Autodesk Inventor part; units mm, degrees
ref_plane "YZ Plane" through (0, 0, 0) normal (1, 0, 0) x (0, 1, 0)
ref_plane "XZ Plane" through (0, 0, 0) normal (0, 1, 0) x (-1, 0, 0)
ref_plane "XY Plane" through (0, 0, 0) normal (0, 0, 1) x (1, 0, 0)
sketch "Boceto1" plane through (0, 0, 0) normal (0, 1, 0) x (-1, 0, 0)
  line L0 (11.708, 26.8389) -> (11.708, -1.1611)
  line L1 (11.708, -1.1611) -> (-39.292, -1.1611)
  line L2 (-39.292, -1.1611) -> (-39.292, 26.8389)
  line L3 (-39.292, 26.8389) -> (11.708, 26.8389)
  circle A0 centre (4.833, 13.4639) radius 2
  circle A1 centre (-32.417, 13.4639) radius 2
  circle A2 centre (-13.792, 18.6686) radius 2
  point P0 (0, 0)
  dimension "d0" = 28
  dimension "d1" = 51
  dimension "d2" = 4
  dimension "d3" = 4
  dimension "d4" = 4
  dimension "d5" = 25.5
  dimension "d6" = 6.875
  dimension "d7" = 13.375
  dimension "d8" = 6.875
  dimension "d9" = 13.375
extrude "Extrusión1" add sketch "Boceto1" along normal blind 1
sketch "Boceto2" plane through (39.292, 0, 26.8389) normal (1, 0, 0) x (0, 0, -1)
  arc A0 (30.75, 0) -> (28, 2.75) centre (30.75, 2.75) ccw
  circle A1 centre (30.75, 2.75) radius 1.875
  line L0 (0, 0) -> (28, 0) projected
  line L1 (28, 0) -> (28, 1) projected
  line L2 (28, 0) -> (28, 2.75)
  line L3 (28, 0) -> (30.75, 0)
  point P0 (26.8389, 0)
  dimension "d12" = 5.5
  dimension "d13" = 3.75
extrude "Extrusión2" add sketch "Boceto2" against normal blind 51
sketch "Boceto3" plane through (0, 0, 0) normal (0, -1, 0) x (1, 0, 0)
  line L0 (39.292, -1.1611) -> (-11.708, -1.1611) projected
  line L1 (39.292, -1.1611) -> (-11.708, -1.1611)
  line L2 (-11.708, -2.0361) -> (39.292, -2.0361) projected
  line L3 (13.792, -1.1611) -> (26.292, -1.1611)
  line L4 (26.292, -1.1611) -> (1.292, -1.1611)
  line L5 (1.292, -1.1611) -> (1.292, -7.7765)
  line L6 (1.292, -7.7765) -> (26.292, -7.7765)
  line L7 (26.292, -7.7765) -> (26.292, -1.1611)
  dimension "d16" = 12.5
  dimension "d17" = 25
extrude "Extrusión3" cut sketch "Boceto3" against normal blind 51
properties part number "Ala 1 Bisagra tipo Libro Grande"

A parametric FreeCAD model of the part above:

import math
import FreeCAD as App
import Part
import Sketcher
from FreeCAD import Vector


def add_polygon(sketch, points):
    """Adds a closed chain of lines whose ends are joined by coincident constraints."""
    first, n = sketch.GeometryCount, len(points)
    for a, b in zip(points, points[1:] + points[:1]):
        sketch.addGeometry(Part.LineSegment(App.Vector(*a, 0), App.Vector(*b, 0)), False)
    for i in range(n):
        sketch.addConstraint(Sketcher.Constraint("Coincident", first + i, 2, first + (i + 1) % n, 1))

doc = App.newDocument("Part")
body = doc.addObject("PartDesign::Body", "Body")

# Sketch on XZ plane
sketch1 = body.newObject("Sketcher::SketchObject", "Sketch")
sketch1.AttachmentSupport = (doc.getObject("XZ_Plane"), [""])
sketch1.MapMode = "FlatFace"
add_polygon(sketch1, [(-11.7, -1.2), (-11.7, 26.8), (39.3, 26.8), (39.3, -1.2)])  # lines 0-3
sketch1.addGeometry(Part.Circle(Vector(32.4, 13.5, 0), Vector(0, 0, 1), 2), False)  # 4
sketch1.addGeometry(Part.Circle(Vector(13.8, 18.7, 0), Vector(0, 0, 1), 2), False)  # 5
sketch1.addGeometry(Part.Circle(Vector(-4.8, 13.5, 0), Vector(0, 0, 1), 2), False)  # 6
sketch1.addConstraint(Sketcher.Constraint("Vertical", 0))
sketch1.addConstraint(Sketcher.Constraint("Horizontal", 1))
sketch1.addConstraint(Sketcher.Constraint("Vertical", 2))
sketch1.addConstraint(Sketcher.Constraint("Horizontal", 3))
sketch1.addConstraint(Sketcher.Constraint("Equal", 4, 5))
sketch1.addConstraint(Sketcher.Constraint("Equal", 5, 6))
sketch1.addConstraint(Sketcher.Constraint("Horizontal", 4, 3, 6, 3))
sketch1.addConstraint(Sketcher.Constraint("Diameter", 4, 4.0))
sketch1.addConstraint(Sketcher.Constraint("DistanceX", 1, 1, 1, 2, 51.0))
sketch1.addConstraint(Sketcher.Constraint("DistanceY", 0, 1, 0, 2, 28.0))
sketch1.addConstraint(Sketcher.Constraint("DistanceX", 0, 2, 5, 3, 25.5))
sketch1.addConstraint(Sketcher.Constraint("DistanceX", 0, 2, 6, 3, 6.875))
sketch1.addConstraint(Sketcher.Constraint("DistanceY", 6, 3, 0, 2, 13.375))
sketch1.addConstraint(Sketcher.Constraint("DistanceX", 4, 3, 1, 2, 6.875))
sketch1.addConstraint(Sketcher.Constraint("DistanceX", -1, 1, 4, 3, 32.417))
sketch1.addConstraint(Sketcher.Constraint("DistanceY", -1, 1, 4, 3, 13.464))
sketch1.addConstraint(Sketcher.Constraint("DistanceY", -1, 1, 5, 3, 18.6686))
pad1 = body.newObject("PartDesign::Pad", "Pad")
pad1.Profile = sketch1
pad1.Length = 1
pad1.Reversed = True

# Sketch on YZ plane
sketch2 = body.newObject("Sketcher::SketchObject", "Sketch001")
sketch2.AttachmentSupport = (doc.getObject("YZ_Plane"), [""])
sketch2.MapMode = "FlatFace"
sketch2.AttachmentOffset = App.Placement(Vector(0, 0, 39.292), App.Rotation())
sketch2.addGeometry(Part.LineSegment(Vector(0, -1.2, 0), Vector(0, -3.9, 0)), False)
sketch2.addGeometry(Part.ArcOfCircle(Part.Circle(Vector(2.8, -3.9, 0), Vector(0, 0, 1), 2.8), math.radians(180), math.radians(450)), False)
sketch2.addGeometry(Part.LineSegment(Vector(2.8, -1.2, 0), Vector(0, -1.2, 0)), False)
sketch2.addGeometry(Part.Circle(Vector(2.8, -3.9, 0), Vector(0, 0, 1), 1.9), False)
sketch2.addConstraint(Sketcher.Constraint("Tangent", 0, 2, 1, 1))
sketch2.addConstraint(Sketcher.Constraint("Tangent", 1, 2, 2, 1))
sketch2.addConstraint(Sketcher.Constraint("Coincident", 2, 2, 0, 1))
sketch2.addConstraint(Sketcher.Constraint("Vertical", 0))
sketch2.addConstraint(Sketcher.Constraint("Horizontal", 2))
sketch2.addConstraint(Sketcher.Constraint("Coincident", 3, 3, 1, 3))
sketch2.addConstraint(Sketcher.Constraint("PointOnObject", 0, 2, -2))
sketch2.addConstraint(Sketcher.Constraint("Diameter", 3, 3.75))
sketch2.addConstraint(Sketcher.Constraint("Radius", 1, 2.75))
sketch2.addConstraint(Sketcher.Constraint("DistanceY", 1, 3, -1, 1, 3.911))
pad2 = body.newObject("PartDesign::Pad", "Pad001")
pad2.Profile = sketch2
pad2.Length = 51
pad2.Reversed = True

# Sketch on XZ plane
sketch3 = body.newObject("Sketcher::SketchObject", "Sketch002")
sketch3.AttachmentSupport = (doc.getObject("XZ_Plane"), [""])
sketch3.MapMode = "FlatFace"
add_polygon(sketch3, [(26, -1), (1, -1), (1, -8), (26, -8)])  # lines 0-3
sketch3.addConstraint(Sketcher.Constraint("Horizontal", 0))
sketch3.addConstraint(Sketcher.Constraint("Vertical", 1))
sketch3.addConstraint(Sketcher.Constraint("Horizontal", 2))
sketch3.addConstraint(Sketcher.Constraint("Vertical", 3))
sketch3.addConstraint(Sketcher.Constraint("DistanceX", 0, 2, 0, 1, 25.0))
sketch3.addConstraint(Sketcher.Constraint("DistanceY", 1, 2, 1, 1, 6.6154))
sketch3.addConstraint(Sketcher.Constraint("DistanceX", -1, 1, 0, 2, 1.292))
sketch3.addConstraint(Sketcher.Constraint("DistanceY", 0, 2, -1, 1, 1.161))
pocket1 = body.newObject("PartDesign::Pocket", "Pocket")
pocket1.Profile = sketch3
pocket1.Length = 51

doc.recompute()
